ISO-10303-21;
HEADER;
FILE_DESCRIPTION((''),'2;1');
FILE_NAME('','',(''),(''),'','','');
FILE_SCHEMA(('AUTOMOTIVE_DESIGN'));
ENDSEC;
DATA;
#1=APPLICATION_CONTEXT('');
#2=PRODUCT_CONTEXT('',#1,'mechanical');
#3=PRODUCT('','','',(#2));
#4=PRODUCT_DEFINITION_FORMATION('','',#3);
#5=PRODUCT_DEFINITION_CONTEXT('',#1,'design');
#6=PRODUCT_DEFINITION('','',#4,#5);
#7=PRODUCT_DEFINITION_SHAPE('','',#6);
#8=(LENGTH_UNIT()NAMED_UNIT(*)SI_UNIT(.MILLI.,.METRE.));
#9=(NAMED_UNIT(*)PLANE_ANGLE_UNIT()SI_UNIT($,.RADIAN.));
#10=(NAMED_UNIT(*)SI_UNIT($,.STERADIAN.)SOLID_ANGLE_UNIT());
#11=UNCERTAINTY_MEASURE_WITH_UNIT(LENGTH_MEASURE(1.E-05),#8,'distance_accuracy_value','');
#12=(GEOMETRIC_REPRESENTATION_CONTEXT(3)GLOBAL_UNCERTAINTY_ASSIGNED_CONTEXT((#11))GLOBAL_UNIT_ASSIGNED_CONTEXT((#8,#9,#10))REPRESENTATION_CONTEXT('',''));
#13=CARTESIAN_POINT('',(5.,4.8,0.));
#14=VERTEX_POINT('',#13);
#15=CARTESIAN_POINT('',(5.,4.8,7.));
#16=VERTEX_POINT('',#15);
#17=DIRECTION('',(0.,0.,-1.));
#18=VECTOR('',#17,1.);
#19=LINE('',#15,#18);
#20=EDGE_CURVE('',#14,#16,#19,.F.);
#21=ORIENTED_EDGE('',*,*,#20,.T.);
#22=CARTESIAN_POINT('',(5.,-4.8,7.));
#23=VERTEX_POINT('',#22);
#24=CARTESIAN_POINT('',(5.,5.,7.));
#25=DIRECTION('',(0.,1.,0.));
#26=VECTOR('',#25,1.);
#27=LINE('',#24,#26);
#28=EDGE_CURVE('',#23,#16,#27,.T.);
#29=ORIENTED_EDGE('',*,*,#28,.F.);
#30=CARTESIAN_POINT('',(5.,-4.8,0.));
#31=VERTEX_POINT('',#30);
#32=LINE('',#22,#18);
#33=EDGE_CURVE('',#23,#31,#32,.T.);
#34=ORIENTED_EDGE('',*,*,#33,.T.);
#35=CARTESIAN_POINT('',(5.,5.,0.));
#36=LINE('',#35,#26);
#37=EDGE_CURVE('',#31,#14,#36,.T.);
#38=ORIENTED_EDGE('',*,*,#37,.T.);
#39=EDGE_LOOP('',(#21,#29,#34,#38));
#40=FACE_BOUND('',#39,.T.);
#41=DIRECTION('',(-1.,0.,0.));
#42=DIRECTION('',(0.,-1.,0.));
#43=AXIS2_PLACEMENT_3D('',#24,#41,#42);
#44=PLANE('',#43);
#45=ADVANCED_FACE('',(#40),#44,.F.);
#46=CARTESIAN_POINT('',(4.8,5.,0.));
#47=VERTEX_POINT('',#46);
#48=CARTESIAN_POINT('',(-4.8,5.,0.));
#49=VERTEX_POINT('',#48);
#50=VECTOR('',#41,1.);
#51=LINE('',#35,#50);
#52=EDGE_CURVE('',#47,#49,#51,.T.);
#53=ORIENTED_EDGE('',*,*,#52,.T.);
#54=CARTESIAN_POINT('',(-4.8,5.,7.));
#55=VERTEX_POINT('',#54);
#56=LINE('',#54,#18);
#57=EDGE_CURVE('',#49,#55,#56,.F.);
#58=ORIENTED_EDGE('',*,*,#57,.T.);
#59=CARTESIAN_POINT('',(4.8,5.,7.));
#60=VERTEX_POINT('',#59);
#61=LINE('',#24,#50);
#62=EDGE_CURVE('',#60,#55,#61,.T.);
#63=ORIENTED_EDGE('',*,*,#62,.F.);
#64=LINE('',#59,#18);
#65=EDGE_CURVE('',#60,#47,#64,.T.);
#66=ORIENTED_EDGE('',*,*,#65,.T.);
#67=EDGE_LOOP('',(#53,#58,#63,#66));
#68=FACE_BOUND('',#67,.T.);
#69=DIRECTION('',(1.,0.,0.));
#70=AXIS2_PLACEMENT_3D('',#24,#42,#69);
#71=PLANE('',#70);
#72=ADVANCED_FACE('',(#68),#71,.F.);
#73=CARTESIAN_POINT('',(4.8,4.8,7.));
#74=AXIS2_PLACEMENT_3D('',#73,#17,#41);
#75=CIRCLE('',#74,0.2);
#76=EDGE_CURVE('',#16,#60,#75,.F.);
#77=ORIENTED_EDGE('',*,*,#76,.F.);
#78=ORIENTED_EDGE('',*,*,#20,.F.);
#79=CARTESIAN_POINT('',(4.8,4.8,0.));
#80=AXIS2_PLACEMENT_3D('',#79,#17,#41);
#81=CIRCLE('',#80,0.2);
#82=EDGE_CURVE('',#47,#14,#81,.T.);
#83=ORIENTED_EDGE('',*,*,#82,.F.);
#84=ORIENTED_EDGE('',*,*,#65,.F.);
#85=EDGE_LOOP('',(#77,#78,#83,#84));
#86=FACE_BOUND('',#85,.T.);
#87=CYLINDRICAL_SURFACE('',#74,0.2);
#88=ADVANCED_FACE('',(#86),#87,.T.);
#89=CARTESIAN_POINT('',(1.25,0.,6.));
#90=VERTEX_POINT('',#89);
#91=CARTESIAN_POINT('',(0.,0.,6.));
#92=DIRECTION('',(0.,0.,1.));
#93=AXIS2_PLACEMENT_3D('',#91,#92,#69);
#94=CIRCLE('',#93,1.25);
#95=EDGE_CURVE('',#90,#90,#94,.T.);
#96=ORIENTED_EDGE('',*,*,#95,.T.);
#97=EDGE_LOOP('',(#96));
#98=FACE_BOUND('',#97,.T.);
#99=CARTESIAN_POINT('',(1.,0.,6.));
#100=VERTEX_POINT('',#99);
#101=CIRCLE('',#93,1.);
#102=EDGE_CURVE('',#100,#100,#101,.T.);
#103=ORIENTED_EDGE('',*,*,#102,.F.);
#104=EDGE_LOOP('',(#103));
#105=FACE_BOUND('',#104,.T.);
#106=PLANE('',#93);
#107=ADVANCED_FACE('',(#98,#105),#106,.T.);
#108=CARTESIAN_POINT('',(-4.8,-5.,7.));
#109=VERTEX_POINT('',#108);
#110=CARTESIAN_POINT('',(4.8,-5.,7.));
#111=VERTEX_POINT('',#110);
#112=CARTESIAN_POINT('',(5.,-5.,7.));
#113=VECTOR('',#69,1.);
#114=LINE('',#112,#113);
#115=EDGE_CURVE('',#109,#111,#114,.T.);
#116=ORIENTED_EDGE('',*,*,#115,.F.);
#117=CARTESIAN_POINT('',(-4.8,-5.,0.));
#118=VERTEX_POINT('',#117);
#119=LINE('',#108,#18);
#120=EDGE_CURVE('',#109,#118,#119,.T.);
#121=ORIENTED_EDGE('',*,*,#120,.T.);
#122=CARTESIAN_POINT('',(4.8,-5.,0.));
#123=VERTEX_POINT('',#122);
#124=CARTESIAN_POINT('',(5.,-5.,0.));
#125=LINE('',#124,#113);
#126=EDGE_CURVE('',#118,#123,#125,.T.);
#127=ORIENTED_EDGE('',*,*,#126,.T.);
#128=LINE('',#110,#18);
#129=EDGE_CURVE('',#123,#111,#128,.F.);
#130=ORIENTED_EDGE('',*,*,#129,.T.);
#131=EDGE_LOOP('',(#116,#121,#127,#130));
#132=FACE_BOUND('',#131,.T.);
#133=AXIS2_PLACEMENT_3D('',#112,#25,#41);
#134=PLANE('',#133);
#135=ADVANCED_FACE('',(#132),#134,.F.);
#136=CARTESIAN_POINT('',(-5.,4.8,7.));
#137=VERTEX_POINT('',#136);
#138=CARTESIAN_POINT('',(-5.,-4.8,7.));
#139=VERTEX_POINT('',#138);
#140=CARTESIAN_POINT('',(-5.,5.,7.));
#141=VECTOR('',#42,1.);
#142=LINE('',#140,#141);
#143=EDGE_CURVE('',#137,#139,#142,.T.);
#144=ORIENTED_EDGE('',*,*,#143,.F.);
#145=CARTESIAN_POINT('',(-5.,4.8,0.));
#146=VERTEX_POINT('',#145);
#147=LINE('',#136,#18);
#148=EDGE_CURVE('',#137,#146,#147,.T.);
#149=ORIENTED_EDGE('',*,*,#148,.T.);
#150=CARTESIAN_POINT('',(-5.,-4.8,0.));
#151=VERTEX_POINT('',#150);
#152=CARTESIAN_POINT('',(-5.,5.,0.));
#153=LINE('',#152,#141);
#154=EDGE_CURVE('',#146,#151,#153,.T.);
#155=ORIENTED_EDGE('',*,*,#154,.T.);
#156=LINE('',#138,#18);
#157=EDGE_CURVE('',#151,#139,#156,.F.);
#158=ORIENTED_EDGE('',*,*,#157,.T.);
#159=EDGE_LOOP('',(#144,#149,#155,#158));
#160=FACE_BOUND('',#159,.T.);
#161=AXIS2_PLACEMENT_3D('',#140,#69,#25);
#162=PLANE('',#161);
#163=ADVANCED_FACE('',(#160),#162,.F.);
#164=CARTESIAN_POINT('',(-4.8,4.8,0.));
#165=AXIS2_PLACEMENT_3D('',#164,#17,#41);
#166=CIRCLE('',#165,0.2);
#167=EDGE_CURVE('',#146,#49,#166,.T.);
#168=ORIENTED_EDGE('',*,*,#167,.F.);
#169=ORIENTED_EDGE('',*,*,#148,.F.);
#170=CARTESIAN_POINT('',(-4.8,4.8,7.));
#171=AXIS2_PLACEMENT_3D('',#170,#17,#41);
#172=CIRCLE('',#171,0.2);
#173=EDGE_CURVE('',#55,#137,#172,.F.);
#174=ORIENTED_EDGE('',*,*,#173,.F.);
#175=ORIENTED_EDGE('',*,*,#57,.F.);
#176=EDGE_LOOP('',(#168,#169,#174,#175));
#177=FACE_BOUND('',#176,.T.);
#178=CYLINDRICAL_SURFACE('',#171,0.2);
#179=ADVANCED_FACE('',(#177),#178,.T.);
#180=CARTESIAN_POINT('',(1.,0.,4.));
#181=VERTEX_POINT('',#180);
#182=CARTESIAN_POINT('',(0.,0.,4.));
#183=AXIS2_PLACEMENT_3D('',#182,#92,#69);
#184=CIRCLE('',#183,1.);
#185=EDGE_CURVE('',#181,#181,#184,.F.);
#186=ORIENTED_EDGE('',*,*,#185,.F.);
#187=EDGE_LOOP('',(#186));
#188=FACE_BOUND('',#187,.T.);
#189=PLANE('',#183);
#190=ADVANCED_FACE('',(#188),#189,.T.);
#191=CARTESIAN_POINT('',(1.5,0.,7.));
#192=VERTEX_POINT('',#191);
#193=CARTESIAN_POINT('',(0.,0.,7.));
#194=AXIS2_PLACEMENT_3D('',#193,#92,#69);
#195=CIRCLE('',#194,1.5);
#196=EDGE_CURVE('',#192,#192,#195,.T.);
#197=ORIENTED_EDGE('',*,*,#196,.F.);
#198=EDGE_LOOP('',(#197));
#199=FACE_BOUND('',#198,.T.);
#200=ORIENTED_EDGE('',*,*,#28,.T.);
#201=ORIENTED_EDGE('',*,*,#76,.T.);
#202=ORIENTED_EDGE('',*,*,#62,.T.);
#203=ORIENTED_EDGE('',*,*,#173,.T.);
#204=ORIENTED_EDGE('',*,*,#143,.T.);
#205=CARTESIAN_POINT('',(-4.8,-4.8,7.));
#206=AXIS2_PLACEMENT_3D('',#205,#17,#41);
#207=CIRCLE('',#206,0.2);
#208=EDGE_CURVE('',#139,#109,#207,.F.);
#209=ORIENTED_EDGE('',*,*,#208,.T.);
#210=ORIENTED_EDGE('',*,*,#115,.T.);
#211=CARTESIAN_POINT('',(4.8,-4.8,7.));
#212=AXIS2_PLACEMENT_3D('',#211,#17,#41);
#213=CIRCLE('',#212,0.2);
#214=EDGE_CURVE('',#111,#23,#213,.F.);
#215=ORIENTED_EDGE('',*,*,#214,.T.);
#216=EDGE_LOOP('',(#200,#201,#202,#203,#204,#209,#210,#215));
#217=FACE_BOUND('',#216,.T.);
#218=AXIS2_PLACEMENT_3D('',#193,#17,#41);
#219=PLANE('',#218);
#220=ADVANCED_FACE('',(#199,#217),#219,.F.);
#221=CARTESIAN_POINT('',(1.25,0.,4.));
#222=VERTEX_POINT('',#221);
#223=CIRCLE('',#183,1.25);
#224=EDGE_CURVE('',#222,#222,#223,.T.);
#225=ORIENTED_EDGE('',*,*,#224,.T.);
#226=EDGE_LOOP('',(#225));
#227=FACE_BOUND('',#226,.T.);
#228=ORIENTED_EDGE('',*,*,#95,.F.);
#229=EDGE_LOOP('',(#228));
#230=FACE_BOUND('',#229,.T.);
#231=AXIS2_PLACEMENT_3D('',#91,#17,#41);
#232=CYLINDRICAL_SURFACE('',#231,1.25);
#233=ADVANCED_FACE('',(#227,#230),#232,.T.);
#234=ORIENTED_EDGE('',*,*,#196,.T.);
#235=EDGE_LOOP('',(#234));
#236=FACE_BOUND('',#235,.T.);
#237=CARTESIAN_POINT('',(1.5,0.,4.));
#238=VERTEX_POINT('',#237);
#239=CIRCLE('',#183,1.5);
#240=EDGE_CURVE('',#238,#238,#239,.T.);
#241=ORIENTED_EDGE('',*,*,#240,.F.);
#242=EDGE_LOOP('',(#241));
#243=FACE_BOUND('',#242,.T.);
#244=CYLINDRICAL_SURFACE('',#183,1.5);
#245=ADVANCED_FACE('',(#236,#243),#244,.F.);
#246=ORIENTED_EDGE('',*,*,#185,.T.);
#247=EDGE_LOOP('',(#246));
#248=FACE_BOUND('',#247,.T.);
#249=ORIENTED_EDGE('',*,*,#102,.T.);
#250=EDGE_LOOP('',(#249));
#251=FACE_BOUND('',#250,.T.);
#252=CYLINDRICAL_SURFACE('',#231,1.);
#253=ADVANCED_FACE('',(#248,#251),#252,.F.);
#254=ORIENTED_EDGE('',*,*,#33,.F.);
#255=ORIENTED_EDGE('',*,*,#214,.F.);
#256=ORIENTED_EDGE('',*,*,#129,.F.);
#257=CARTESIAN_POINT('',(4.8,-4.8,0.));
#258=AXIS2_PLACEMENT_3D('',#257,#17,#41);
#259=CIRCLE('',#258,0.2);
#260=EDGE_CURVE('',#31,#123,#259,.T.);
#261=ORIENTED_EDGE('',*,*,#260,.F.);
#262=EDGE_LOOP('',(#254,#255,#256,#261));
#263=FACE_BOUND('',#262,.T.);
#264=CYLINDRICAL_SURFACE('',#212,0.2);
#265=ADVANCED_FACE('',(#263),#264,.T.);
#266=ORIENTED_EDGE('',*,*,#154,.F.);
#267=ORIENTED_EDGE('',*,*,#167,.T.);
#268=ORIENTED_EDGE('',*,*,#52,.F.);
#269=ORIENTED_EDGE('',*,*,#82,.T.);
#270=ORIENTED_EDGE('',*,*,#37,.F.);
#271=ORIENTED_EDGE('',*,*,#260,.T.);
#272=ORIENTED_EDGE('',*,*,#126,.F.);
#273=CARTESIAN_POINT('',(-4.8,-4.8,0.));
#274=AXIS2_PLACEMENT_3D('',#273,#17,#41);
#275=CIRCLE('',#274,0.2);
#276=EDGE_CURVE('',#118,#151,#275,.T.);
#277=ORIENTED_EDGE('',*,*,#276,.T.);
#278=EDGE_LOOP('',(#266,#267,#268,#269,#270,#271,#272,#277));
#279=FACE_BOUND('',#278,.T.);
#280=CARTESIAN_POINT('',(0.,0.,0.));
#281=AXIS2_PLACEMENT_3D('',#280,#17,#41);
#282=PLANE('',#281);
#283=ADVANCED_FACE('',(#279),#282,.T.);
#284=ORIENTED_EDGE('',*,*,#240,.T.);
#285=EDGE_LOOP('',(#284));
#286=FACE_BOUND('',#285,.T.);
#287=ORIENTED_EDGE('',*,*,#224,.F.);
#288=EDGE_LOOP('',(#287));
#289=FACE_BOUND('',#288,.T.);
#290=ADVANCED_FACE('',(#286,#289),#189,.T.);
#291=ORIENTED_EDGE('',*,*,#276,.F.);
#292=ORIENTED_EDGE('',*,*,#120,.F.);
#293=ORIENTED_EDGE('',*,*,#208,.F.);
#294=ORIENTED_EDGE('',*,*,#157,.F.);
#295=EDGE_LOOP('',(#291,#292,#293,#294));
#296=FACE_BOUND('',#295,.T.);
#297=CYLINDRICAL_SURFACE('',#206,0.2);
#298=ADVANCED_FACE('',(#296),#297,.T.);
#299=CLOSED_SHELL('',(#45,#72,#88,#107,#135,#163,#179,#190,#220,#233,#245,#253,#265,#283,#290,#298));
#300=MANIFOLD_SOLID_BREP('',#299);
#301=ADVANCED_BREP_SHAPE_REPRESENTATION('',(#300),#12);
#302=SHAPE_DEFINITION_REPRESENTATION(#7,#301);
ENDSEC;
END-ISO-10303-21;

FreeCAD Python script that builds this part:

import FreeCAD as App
import Part
import Sketcher


def edges_at(feature, points):
    """Names of the edges that pass closest to the given points."""
    edges = feature.Shape.Edges
    near = lambda p: min(range(len(edges)), key=lambda i: edges[i].distToShape(Part.Vertex(*p))[0])
    return sorted({f"Edge{near(p) + 1}" for p in points})


def add_polygon(sketch, points):
    """Adds a closed chain of lines whose ends are joined by coincident constraints."""
    first, n = sketch.GeometryCount, len(points)
    for a, b in zip(points, points[1:] + points[:1]):
        sketch.addGeometry(Part.LineSegment(App.Vector(*a, 0), App.Vector(*b, 0)), False)
    for i in range(n):
        sketch.addConstraint(Sketcher.Constraint("Coincident", first + i, 2, first + (i + 1) % n, 1))

doc = App.newDocument("Part")
body = doc.addObject("PartDesign::Body", "Body")

# Sketch on XY plane
sketch1 = doc.addObject("Sketcher::SketchObject", "Sketch")
body.addObject(sketch1)
sketch1.AttachmentSupport = (doc.XY_Plane, [""])
sketch1.MapMode = "FlatFace"
add_polygon(sketch1, [(-5, 5), (-5, -5), (5, -5), (5, 5)])  # lines 0-3
sketch1.addConstraint([
    Sketcher.Constraint("Vertical", 0),
    Sketcher.Constraint("Horizontal", 1),
    Sketcher.Constraint("Vertical", 2),
    Sketcher.Constraint("Horizontal", 3),
    Sketcher.Constraint("Symmetric", 0, 2, 2, 2, -1, 1),
    Sketcher.Constraint("Equal", 3, 0),
    Sketcher.Constraint("DistanceX", 1, 1, 1, 2, 10.0),
])
pad1 = doc.addObject("PartDesign::Pad", "Pad")
body.addObject(pad1)
pad1.Profile = sketch1
pad1.Length = 7

# Sketch on XY plane
sketch2 = doc.addObject("Sketcher::SketchObject", "Sketch001")
body.addObject(sketch2)
sketch2.AttachmentSupport = (doc.XY_Plane, [""])
sketch2.MapMode = "FlatFace"
sketch2.AttachmentOffset = App.Placement(App.Vector(0, 0, 7), App.Rotation())
sketch2.addGeometry(Part.Circle(App.Vector(0, 0, 0), App.Vector(0, 0, 1), 1.5), False)
sketch2.addConstraint([
    Sketcher.Constraint("Coincident", 0, 3, -1, 1),
    Sketcher.Constraint("Diameter", 0, 3.0),
])
pocket1 = doc.addObject("PartDesign::Pocket", "Pocket")
body.addObject(pocket1)
pocket1.Profile = sketch2
pocket1.Length = 3

# Sketch on XY plane
sketch3 = doc.addObject("Sketcher::SketchObject", "Sketch002")
body.addObject(sketch3)
sketch3.AttachmentSupport = (doc.XY_Plane, [""])
sketch3.MapMode = "FlatFace"
sketch3.AttachmentOffset = App.Placement(App.Vector(0, 0, 4), App.Rotation())
sketch3.addGeometry([
    Part.Circle(App.Vector(0, 0, 0), App.Vector(0, 0, 1), 1.2),
    Part.Circle(App.Vector(0, 0, 0), App.Vector(0, 0, 1), 1),
], False)
sketch3.addConstraint([
    Sketcher.Constraint("Coincident", 0, 3, -1, 1),
    Sketcher.Constraint("Coincident", 1, 3, -1, 1),
    Sketcher.Constraint("Diameter", 1, 2.0),
    Sketcher.Constraint("Diameter", 0, 2.5),
])
pad2 = doc.addObject("PartDesign::Pad", "Pad001")
body.addObject(pad2)
pad2.Profile = sketch3
pad2.Length = 2
doc.recompute()

fillet = doc.addObject("PartDesign::Fillet", "Fillet")
body.addObject(fillet)
fillet.Base = (pad2, edges_at(pad2, [
    (-5, 5, 3.5),
    (5, 5, 3.5),
    (5, -5, 3.5),
    (-5, -5, 3.5),
]))
fillet.Radius = 0.2

doc.recompute()
